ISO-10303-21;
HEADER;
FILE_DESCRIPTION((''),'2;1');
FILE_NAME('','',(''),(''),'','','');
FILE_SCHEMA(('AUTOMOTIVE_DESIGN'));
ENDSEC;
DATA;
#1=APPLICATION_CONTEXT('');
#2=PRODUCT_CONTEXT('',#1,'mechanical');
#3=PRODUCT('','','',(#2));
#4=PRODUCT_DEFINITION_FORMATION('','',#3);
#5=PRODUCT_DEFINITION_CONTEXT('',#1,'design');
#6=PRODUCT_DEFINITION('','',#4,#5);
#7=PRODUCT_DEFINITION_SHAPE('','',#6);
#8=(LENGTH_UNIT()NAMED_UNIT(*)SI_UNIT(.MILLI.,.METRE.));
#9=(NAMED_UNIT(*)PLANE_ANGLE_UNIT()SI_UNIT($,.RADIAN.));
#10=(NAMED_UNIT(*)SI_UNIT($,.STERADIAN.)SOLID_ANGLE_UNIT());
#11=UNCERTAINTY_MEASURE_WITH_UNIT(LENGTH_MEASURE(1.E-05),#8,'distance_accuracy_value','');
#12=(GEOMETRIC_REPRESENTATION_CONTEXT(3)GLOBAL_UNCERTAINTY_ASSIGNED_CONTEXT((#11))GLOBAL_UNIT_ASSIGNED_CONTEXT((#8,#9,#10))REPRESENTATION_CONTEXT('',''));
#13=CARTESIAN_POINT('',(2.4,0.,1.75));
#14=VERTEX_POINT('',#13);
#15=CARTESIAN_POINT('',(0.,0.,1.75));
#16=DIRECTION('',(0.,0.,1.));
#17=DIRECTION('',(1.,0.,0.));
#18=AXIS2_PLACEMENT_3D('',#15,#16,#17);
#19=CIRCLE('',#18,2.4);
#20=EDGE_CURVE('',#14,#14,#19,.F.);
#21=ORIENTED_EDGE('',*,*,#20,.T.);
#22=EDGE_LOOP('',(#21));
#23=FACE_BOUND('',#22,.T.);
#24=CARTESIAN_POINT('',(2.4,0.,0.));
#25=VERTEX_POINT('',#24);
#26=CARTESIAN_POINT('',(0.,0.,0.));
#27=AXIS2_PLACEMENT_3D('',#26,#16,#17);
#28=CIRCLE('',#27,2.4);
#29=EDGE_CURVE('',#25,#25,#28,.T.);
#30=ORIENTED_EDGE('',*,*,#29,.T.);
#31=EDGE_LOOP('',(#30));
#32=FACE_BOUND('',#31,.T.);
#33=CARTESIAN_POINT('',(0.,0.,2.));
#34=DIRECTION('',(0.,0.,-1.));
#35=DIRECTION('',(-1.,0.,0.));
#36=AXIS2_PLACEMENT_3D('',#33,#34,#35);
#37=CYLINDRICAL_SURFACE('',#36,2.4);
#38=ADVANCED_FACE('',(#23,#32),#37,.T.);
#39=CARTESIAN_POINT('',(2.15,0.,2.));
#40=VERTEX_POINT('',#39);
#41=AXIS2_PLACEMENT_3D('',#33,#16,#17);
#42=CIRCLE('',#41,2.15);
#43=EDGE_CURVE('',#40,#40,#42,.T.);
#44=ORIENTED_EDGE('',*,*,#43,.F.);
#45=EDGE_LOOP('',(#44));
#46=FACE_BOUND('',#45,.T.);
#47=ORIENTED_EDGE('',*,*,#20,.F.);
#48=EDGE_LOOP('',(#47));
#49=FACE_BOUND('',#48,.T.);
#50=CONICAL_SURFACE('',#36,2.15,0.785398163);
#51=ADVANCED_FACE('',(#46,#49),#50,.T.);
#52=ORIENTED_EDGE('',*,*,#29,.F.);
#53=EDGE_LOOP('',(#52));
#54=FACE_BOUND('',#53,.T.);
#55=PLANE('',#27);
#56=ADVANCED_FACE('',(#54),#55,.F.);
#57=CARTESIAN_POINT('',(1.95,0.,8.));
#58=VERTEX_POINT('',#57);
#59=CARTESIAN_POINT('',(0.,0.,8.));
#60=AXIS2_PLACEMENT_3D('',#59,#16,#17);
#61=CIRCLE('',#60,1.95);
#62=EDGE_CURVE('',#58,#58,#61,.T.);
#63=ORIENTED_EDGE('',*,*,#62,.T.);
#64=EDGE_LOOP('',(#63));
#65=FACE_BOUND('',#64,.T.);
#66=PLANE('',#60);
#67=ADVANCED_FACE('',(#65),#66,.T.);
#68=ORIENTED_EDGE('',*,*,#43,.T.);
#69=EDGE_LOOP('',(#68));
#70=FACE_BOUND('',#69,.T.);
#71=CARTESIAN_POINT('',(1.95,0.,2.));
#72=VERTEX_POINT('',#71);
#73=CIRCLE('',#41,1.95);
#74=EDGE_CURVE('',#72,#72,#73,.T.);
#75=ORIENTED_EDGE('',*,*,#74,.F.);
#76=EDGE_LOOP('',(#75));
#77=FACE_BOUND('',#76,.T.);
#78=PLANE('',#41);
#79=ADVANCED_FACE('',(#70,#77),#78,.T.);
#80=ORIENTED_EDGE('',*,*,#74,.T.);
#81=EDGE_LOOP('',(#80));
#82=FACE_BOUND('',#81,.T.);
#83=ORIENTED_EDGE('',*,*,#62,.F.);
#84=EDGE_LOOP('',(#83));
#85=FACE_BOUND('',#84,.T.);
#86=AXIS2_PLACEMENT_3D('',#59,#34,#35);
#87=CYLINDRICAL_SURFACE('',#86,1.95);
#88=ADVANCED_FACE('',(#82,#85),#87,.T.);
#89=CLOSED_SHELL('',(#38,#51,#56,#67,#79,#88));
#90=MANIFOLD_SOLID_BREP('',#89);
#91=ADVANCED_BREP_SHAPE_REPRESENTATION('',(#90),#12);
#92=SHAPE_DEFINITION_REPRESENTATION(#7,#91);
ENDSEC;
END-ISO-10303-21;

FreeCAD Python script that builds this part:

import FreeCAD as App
import Part
import Sketcher


def edges_at(feature, points):
    """Names of the edges that pass closest to the given points."""
    edges = feature.Shape.Edges
    near = lambda p: min(range(len(edges)), key=lambda i: edges[i].distToShape(Part.Vertex(*p))[0])
    return sorted({f"Edge{near(p) + 1}" for p in points})

doc = App.newDocument("Part")
body = doc.addObject("PartDesign::Body", "Body")

# Sketch on XY plane
sketch1 = body.newObject("Sketcher::SketchObject", "Sketch")
sketch1.AttachmentSupport = (doc.getObject("XY_Plane"), [""])
sketch1.MapMode = "FlatFace"
sketch1.addGeometry(Part.Circle(App.Vector(0, 0, 0), App.Vector(0, 0, 1), 2.4), False)
sketch1.addConstraint([
    Sketcher.Constraint("Coincident", 0, 3, -1, 1),
    Sketcher.Constraint("Diameter", 0, 4.8),
])
pad1 = body.newObject("PartDesign::Pad", "Pad")
pad1.Profile = sketch1
pad1.Length = 2

# Sketch on XY plane
sketch2 = body.newObject("Sketcher::SketchObject", "Sketch001")
sketch2.AttachmentSupport = (doc.getObject("XY_Plane"), [""])
sketch2.MapMode = "FlatFace"
sketch2.AttachmentOffset = App.Placement(App.Vector(0, 0, 2), App.Rotation())
sketch2.addGeometry(Part.Circle(App.Vector(0, 0, 0), App.Vector(0, 0, 1), 1.9), False)
sketch2.addConstraint([
    Sketcher.Constraint("Coincident", 0, 3, -1, 1),
    Sketcher.Constraint("Diameter", 0, 3.9),
])
pad2 = body.newObject("PartDesign::Pad", "Pad001")
pad2.Profile = sketch2
pad2.Length = 6
doc.recompute()

chamfer = body.newObject("PartDesign::Chamfer", "Chamfer")
chamfer.Base = (pad2, edges_at(pad2, [(-2.4, 0, 2)]))
chamfer.Size = 0.25

doc.recompute()
